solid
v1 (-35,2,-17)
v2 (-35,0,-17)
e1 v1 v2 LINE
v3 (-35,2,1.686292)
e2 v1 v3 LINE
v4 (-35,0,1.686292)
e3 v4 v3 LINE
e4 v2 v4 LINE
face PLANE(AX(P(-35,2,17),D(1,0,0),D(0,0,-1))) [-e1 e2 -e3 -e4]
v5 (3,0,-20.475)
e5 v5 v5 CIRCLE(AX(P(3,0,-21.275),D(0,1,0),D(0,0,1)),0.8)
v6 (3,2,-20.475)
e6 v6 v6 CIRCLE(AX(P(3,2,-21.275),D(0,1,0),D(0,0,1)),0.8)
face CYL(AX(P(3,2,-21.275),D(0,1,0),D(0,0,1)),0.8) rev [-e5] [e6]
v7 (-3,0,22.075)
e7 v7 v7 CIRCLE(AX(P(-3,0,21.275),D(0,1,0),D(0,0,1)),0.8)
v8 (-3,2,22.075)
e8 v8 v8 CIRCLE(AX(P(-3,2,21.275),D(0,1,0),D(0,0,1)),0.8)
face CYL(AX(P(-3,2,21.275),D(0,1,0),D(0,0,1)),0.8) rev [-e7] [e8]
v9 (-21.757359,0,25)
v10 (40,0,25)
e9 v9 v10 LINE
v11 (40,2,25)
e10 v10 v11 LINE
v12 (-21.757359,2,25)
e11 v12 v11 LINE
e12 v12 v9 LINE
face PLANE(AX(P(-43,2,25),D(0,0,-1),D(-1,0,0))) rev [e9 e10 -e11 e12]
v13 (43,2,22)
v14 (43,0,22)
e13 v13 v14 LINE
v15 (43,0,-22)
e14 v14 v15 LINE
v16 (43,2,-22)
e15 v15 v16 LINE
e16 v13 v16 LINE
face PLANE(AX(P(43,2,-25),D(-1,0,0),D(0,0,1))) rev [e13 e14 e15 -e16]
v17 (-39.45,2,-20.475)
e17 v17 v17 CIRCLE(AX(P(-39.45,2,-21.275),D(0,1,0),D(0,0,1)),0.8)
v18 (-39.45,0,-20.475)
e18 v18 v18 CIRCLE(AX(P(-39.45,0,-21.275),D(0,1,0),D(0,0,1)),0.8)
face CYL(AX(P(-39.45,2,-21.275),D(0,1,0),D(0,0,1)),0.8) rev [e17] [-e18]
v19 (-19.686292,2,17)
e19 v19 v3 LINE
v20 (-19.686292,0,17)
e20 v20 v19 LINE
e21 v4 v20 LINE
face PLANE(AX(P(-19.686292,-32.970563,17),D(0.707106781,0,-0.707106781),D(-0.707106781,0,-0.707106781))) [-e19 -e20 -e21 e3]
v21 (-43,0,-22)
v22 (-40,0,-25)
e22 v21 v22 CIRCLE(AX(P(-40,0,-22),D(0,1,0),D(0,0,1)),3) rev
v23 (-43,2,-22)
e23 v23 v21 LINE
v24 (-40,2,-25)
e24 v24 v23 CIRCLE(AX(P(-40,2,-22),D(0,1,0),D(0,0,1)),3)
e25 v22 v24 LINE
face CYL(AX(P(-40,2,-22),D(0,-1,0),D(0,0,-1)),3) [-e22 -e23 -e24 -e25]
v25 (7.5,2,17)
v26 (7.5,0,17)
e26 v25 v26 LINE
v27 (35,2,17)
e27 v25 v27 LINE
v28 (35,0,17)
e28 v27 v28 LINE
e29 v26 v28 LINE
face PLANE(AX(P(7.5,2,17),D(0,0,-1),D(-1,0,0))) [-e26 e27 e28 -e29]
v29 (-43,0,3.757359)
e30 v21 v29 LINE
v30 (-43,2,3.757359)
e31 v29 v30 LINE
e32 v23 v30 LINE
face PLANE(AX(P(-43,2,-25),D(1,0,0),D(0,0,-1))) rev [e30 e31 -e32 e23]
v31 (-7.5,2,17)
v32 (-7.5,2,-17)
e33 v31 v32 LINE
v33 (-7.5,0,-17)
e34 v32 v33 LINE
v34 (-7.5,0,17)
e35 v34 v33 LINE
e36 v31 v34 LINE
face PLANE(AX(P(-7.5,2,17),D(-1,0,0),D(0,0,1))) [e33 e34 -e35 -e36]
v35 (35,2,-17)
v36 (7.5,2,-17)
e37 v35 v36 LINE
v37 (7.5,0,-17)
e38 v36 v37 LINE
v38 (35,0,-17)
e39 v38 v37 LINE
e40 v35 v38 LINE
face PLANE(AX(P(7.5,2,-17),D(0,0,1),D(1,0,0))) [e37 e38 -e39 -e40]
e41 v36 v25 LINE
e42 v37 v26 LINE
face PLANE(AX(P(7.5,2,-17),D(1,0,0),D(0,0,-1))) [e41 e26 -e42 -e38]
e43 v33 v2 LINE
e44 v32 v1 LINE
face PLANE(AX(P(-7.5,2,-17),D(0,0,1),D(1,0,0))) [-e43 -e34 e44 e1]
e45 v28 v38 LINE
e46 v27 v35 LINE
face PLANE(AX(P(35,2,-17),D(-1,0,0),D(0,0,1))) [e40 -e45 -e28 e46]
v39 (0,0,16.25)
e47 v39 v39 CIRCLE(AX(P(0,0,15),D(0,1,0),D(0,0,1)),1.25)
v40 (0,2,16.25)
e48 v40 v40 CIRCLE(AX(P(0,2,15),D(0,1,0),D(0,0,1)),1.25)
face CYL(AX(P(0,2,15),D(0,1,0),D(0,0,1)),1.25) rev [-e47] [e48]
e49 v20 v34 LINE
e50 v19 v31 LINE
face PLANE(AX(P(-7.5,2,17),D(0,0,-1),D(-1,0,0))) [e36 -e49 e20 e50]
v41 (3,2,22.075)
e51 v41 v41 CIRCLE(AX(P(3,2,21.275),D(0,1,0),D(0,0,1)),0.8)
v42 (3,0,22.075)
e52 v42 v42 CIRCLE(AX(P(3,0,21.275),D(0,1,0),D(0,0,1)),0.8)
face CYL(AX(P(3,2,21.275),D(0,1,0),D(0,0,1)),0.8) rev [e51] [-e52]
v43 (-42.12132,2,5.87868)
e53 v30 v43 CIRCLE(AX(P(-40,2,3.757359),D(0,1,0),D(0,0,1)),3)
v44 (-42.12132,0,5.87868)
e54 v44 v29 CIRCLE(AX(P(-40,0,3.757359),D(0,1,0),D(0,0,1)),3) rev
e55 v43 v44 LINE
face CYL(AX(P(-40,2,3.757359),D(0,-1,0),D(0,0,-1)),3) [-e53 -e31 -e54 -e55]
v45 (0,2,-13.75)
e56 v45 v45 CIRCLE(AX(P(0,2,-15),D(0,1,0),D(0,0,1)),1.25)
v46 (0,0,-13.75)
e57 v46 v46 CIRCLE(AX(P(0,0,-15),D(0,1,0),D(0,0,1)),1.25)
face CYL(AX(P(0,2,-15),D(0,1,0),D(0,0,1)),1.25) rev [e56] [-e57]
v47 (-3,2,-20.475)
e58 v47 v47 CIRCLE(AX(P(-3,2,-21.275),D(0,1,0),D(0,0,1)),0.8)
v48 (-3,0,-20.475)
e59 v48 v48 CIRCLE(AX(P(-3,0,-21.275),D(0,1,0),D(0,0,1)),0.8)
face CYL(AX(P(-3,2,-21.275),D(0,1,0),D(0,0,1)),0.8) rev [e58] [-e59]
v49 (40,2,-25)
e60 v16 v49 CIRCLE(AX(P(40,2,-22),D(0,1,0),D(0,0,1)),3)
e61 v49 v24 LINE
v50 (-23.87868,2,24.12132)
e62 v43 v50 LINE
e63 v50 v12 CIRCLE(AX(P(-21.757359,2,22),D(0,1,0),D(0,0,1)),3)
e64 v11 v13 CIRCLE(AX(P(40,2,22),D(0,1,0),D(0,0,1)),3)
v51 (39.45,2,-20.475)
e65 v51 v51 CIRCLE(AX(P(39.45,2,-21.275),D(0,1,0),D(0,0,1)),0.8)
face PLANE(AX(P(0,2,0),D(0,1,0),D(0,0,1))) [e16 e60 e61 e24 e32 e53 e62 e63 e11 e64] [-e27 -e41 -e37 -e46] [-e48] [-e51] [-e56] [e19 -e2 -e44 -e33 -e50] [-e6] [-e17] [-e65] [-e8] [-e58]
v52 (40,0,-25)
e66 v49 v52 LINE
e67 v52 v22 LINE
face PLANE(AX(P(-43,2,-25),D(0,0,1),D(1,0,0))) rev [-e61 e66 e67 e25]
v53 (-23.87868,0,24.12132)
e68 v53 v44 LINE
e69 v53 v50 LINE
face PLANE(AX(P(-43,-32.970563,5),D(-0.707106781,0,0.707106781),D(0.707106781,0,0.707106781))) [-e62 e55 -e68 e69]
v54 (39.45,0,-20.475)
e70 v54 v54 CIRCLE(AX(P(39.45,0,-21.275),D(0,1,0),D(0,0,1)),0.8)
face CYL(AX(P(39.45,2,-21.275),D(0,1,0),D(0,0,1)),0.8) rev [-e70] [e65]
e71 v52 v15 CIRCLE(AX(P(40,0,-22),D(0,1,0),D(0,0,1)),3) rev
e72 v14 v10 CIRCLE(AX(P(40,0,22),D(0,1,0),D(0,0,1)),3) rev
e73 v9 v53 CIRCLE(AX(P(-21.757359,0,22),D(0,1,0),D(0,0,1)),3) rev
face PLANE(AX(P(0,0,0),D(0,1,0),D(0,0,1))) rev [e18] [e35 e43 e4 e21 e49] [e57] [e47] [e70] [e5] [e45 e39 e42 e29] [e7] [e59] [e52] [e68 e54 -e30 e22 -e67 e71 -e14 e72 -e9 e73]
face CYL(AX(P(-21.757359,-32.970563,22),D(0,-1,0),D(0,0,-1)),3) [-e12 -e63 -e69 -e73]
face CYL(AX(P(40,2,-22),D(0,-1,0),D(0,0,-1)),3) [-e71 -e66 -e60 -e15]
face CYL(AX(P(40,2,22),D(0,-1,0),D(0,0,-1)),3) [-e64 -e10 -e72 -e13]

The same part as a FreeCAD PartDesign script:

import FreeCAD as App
import Part
import Sketcher
from FreeCAD import Vector


def edges_at(feature, points):
    """Names of the edges that pass closest to the given points."""
    edges = feature.Shape.Edges
    near = lambda p: min(range(len(edges)), key=lambda i: edges[i].distToShape(Part.Vertex(*p))[0])
    return sorted({f"Edge{near(p) + 1}" for p in points})


def add_polygon(sketch, points):
    """Adds a closed chain of lines whose ends are joined by coincident constraints."""
    first, n = sketch.GeometryCount, len(points)
    for a, b in zip(points, points[1:] + points[:1]):
        sketch.addGeometry(Part.LineSegment(App.Vector(*a, 0), App.Vector(*b, 0)), False)
    for i in range(n):
        sketch.addConstraint(Sketcher.Constraint("Coincident", first + i, 2, first + (i + 1) % n, 1))

doc = App.newDocument("Part")
body = doc.addObject("PartDesign::Body", "Body")

# Sketch on XZ plane
sketch1 = body.newObject("Sketcher::SketchObject", "Sketch")
sketch1.AttachmentSupport = (doc.getObject("XZ_Plane"), [""])
sketch1.MapMode = "FlatFace"
add_polygon(sketch1, [(-43, -25), (-43, 25), (43, 25), (43, -25)])  # lines 0-3
sketch1.addConstraint([
    Sketcher.Constraint("Vertical", 0),
    Sketcher.Constraint("Horizontal", 1),
    Sketcher.Constraint("Vertical", 2),
    Sketcher.Constraint("Horizontal", 3),
    Sketcher.Constraint("Symmetric", 0, 2, 2, 2, -1, 1),
    Sketcher.Constraint("DistanceX", 1, 1, 1, 2, 86.0),
    Sketcher.Constraint("DistanceY", 0, 1, 0, 2, 50.0),
])
pad1 = body.newObject("PartDesign::Pad", "Pad")
pad1.Profile = sketch1
pad1.Length = 2
pad1.Reversed = True

# Sketch on XZ plane
sketch2 = body.newObject("Sketcher::SketchObject", "Sketch001")
sketch2.AttachmentSupport = (doc.getObject("XZ_Plane"), [""])
sketch2.MapMode = "FlatFace"
sketch2.AttachmentOffset = App.Placement(Vector(0, 0, -2), App.Rotation())
sketch2.addGeometry([
    Part.Circle(Vector(-39.5, -21.3, 0), Vector(0, 0, 1), 0.8),
    Part.Circle(Vector(-3, -21.3, 0), Vector(0, 0, 1), 0.8),
    Part.Circle(Vector(-3, 21.3, 0), Vector(0, 0, 1), 0.8),
], False)
sketch2.addConstraint([
    Sketcher.Constraint("Equal", 0, 1),
    Sketcher.Constraint("Equal", 1, 2),
    Sketcher.Constraint("Symmetric", 1, 3, 2, 3, -1),
    Sketcher.Constraint("Horizontal", 0, 3, 1, 3),
    Sketcher.Constraint("Diameter", 0, 1.6),
    Sketcher.Constraint("DistanceX", 1, 3, -1, 1, 3.0),
    Sketcher.Constraint("DistanceX", 0, 3, -1, 1, 39.45),
    Sketcher.Constraint("DistanceY", 1, 3, 2, 3, 42.55),
])
doc.recompute()
hole = body.newObject("PartDesign::Hole", "Hole")
hole.Profile = sketch2
hole.ThreadType = "None"
hole.Diameter = 1.6
hole.DepthType = "ThroughAll"
hole.Reversed = True
doc.recompute()

mirrored = body.newObject("PartDesign::Mirrored", "Mirrored")
mirrored.Originals = [hole]
mirrored.MirrorPlane = (doc.getObject("YZ_Plane"), [""])
body.Tip = mirrored

# Sketch on XZ plane
sketch3 = body.newObject("Sketcher::SketchObject", "Sketch002")
sketch3.AttachmentSupport = (doc.getObject("XZ_Plane"), [""])
sketch3.MapMode = "FlatFace"
sketch3.AttachmentOffset = App.Placement(Vector(0, 0, -2), App.Rotation())
sketch3.addGeometry([
    Part.Circle(Vector(0, -15, 0), Vector(0, 0, 1), 1.2),
    Part.Circle(Vector(0, 15, 0), Vector(0, 0, 1), 1.2),
], False)
sketch3.addConstraint([
    Sketcher.Constraint("Equal", 0, 1),
    Sketcher.Constraint("Symmetric", 0, 3, 1, 3, -1, 1),
    Sketcher.Constraint("PointOnObject", 0, 3, -2),
    Sketcher.Constraint("Diameter", 0, 2.5),
    Sketcher.Constraint("DistanceY", 0, 3, -1, 1, 15.0),
])
doc.recompute()
hole2 = body.newObject("PartDesign::Hole", "Hole001")
hole2.Profile = sketch3
hole2.ThreadType = "None"
hole2.Diameter = 2.5
hole2.DepthType = "Dimension"
hole2.Depth = 8.5
hole2.DrillPoint = "Angled"
hole2.DrillPointAngle = 118
hole2.Reversed = True

# Sketch on XZ plane
sketch4 = body.newObject("Sketcher::SketchObject", "Sketch003")
sketch4.AttachmentSupport = (doc.getObject("XZ_Plane"), [""])
sketch4.MapMode = "FlatFace"
add_polygon(sketch4, [(-35, -17), (-35, 17), (-8, 17), (-8, -17)])  # lines 0-3
add_polygon(sketch4, [(8, -17), (8, 17), (35, 17), (35, -17)])  # lines 4-7
sketch4.addConstraint([
    Sketcher.Constraint("Vertical", 0),
    Sketcher.Constraint("Horizontal", 1),
    Sketcher.Constraint("Vertical", 2),
    Sketcher.Constraint("Horizontal", 3),
    Sketcher.Constraint("Vertical", 4),
    Sketcher.Constraint("Horizontal", 5),
    Sketcher.Constraint("Vertical", 6),
    Sketcher.Constraint("Horizontal", 7),
    Sketcher.Constraint("Symmetric", 2, 2, 4, 2, -1, 1),
    Sketcher.Constraint("Symmetric", 0, 2, 6, 2, -1, 1),
    Sketcher.Constraint("Horizontal", 1, 2, 4, 2),
    Sketcher.Constraint("DistanceY", 0, 1, 0, 2, 34.0),
    Sketcher.Constraint("DistanceX", 1, 1, 1, 2, 27.5),
    Sketcher.Constraint("DistanceX", 0, 2, -1, 1, 35.0),
])
pocket1 = body.newObject("PartDesign::Pocket", "Pocket")
pocket1.Profile = sketch4
pocket1.Type = "ThroughAll"
doc.recompute()

fillet = body.newObject("PartDesign::Fillet", "Fillet")
fillet.Base = (pocket1, edges_at(pocket1, [
    (-43, 1, -25),
    (43, 1, -25),
    (43, 1, 25),
    (-43, 1, 25),
]))
fillet.Radius = 3

# Sketch on XZ plane
sketch5 = body.newObject("Sketcher::SketchObject", "Sketch004")
sketch5.AttachmentSupport = (doc.getObject("XZ_Plane"), [""])
sketch5.MapMode = "FlatFace"
sketch5.AttachmentOffset = App.Placement(Vector(0, 0, -2), App.Rotation())
add_polygon(sketch5, [(-43, 5), (-43, 25), (-23, 25), (-23, 5)])  # lines 0-3
sketch5.addConstraint([
    Sketcher.Constraint("Vertical", 0),
    Sketcher.Constraint("Horizontal", 1),
    Sketcher.Constraint("Vertical", 2),
    Sketcher.Constraint("Horizontal", 3),
    Sketcher.Constraint("Equal", 3, 0),
    Sketcher.Constraint("DistanceX", 1, 1, 1, 2, 20.0),
    Sketcher.Constraint("DistanceX", 0, 2, -1, 1, 43.0),
    Sketcher.Constraint("DistanceY", -1, 1, 0, 2, 25.0),
])
pocket2 = body.newObject("PartDesign::Pocket", "Pocket001")
pocket2.Profile = sketch5
pocket2.Length = 2
pocket2.Reversed = True

# Sketch on XZ plane
sketch6 = body.newObject("Sketcher::SketchObject", "Sketch005")
sketch6.AttachmentSupport = (doc.getObject("XZ_Plane"), [""])
sketch6.MapMode = "FlatFace"
sketch6.AttachmentOffset = App.Placement(Vector(0, 0, -2), App.Rotation())
add_polygon(sketch6, [(-43, 5), (-23, 25), (-23, 17), (-19.7, 17), (-35, 1.7), (-35, 5)])  # lines 0-5
sketch6.addConstraint([
    Sketcher.Constraint("Vertical", 1),
    Sketcher.Constraint("Horizontal", 2),
    Sketcher.Constraint("Vertical", 4),
    Sketcher.Constraint("Horizontal", 5),
    Sketcher.Constraint("Parallel", 0, 3),
    Sketcher.Constraint("Equal", 5, 1),
    Sketcher.Constraint("Equal", 2, 4),
    Sketcher.Constraint("DistanceX", 5, 2, 5, 1, 8.0),
    Sketcher.Constraint("DistanceX", 0, 2, -1, 1, 23.0),
    Sketcher.Constraint("DistanceY", -1, 1, 0, 2, 25.0),
    Sketcher.Constraint("DistanceX", 3, 2, -1, 1, 35.0),
    Sketcher.Constraint("DistanceX", 2, 1, 2, 2, 3.313708),
])
pad2 = body.newObject("PartDesign::Pad", "Pad001")
pad2.Profile = sketch6
pad2.Length = 2
doc.recompute()

fillet2 = body.newObject("PartDesign::Fillet", "Fillet001")
fillet2.Base = (pad2, edges_at(pad2, [(-43, 1, 5), (-23, 1, 25)]))
fillet2.Radius = 3

doc.recompute()
